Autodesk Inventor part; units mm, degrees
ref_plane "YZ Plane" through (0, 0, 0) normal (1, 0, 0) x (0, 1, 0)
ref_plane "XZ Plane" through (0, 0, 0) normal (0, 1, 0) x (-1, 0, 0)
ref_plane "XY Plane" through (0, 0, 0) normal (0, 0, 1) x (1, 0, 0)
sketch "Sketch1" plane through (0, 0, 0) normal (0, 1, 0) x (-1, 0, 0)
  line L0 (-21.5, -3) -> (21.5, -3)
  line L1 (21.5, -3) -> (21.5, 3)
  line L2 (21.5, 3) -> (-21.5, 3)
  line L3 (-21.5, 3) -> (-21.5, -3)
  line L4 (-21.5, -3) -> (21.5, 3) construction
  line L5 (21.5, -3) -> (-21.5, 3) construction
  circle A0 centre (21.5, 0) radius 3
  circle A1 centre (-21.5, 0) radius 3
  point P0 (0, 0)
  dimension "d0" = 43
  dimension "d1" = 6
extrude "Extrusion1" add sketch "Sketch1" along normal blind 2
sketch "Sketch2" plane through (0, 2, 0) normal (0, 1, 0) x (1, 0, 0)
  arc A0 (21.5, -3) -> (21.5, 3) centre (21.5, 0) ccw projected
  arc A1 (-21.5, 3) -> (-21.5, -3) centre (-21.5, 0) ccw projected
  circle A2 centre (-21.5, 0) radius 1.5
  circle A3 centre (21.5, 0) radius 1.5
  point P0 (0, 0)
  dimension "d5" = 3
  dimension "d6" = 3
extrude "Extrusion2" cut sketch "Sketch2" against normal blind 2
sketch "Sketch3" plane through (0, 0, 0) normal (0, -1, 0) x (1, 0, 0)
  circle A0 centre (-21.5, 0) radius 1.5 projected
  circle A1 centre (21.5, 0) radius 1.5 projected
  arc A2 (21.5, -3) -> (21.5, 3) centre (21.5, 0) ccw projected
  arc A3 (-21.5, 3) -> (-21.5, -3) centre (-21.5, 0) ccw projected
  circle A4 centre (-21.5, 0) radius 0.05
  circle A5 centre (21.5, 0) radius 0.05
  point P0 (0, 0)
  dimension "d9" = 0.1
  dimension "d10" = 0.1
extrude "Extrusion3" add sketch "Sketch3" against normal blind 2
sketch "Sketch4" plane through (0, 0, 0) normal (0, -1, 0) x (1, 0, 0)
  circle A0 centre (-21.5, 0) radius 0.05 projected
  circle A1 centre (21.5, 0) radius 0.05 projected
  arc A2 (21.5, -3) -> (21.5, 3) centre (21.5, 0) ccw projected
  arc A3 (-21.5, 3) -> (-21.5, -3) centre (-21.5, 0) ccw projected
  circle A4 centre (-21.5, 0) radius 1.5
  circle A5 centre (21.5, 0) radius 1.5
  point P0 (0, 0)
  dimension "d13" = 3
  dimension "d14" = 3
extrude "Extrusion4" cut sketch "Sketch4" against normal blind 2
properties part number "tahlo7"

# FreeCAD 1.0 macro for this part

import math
import FreeCAD as App
import Part
import Sketcher
from FreeCAD import Vector

doc = App.newDocument("Part")
params = doc.addObject("Spreadsheet::Sheet", "Params")
for row, (alias, value) in enumerate([
    ("sketch1_radius", "3 mm"),
    ("sketch1_width", "43 mm"),
    ("pad1_length", "2 mm"),
    ("sketch2_diameter", "3 mm"),
    ("pocket1_length", "2 mm"),
    ("sketch3_diameter", "0.1 mm"),
    ("sketch3_diameter2", "3 mm"),
    ("pad2_length", "2 mm"),
    ("sketch4_diameter", "3 mm"),
    ("sketch4_diameter2", "0.1 mm"),
    ("pocket2_length", "2 mm"),
], start=1):
    params.set(f"A{row}", alias)
    params.set(f"B{row}", "=" + value)
    params.setAlias(f"B{row}", alias)

body = doc.addObject("PartDesign::Body", "Body")

# Sketch on XZ plane
sketch1 = body.newObject("Sketcher::SketchObject", "Sketch")
sketch1.AttachmentSupport = (doc.getObject("XZ_Plane"), [""])
sketch1.MapMode = "FlatFace"
sketch1.addGeometry([
    Part.LineSegment(Vector(-21.5, 3, 0), Vector(21.5, 3, 0)),
    Part.ArcOfCircle(Part.Circle(Vector(21.5, 0, 0), Vector(0, 0, 1), 3), math.radians(-90), math.radians(90)),
    Part.LineSegment(Vector(21.5, -3, 0), Vector(-21.5, -3, 0)),
    Part.ArcOfCircle(Part.Circle(Vector(-21.5, 0, 0), Vector(0, 0, 1), 3), math.radians(90), math.radians(270)),
], False)
sketch1.addConstraint([
    Sketcher.Constraint("Tangent", 0, 2, 1, 2),
    Sketcher.Constraint("Tangent", 1, 1, 2, 1),
    Sketcher.Constraint("Tangent", 2, 2, 3, 2),
    Sketcher.Constraint("Tangent", 3, 1, 0, 1),
    Sketcher.Constraint("Horizontal", 0),
    Sketcher.Constraint("Horizontal", 2),
    Sketcher.Constraint("Symmetric", 1, 3, 3, 3, -1, 1),
    Sketcher.Constraint("Radius", 1, 3.0),
    Sketcher.Constraint("DistanceX", 0, 1, 0, 2, 43.0),
])
sketch1.setExpression("Constraints[7]", "Params.sketch1_radius")
sketch1.setExpression("Constraints[8]", "Params.sketch1_width")
pad1 = body.newObject("PartDesign::Pad", "Pad")
pad1.Profile = sketch1
pad1.setExpression("Length", "Params.pad1_length")
pad1.Reversed = True

# Sketch on XZ plane
sketch2 = body.newObject("Sketcher::SketchObject", "Sketch001")
sketch2.AttachmentSupport = (doc.getObject("XZ_Plane"), [""])
sketch2.MapMode = "FlatFace"
sketch2.AttachmentOffset = App.Placement(Vector(0, 0, -2), App.Rotation())
sketch2.addGeometry([
    Part.Circle(Vector(-21.5, 0, 0), Vector(0, 0, 1), 1.5),
    Part.Circle(Vector(21.5, 0, 0), Vector(0, 0, 1), 1.5),
], False)
sketch2.addConstraint([
    Sketcher.Constraint("Equal", 0, 1),
    Sketcher.Constraint("Symmetric", 0, 3, 1, 3, -1, 1),
    Sketcher.Constraint("PointOnObject", 0, 3, -1),
    Sketcher.Constraint("Diameter", 0, 3.0),
    Sketcher.Constraint("DistanceX", 0, 3, 1, 3, 43.0),
])
sketch2.setExpression("Constraints[3]", "Params.sketch2_diameter")
pocket1 = body.newObject("PartDesign::Pocket", "Pocket")
pocket1.Profile = sketch2
pocket1.setExpression("Length", "Params.pocket1_length")
pocket1.Reversed = True

# Sketch on XZ plane
sketch3 = body.newObject("Sketcher::SketchObject", "Sketch002")
sketch3.AttachmentSupport = (doc.getObject("XZ_Plane"), [""])
sketch3.MapMode = "FlatFace"
sketch3.addGeometry([
    Part.Circle(Vector(-21.5, 0, 0), Vector(0, 0, 1), 1.5),
    Part.Circle(Vector(-21.5, 0, 0), Vector(0, 0, 1), 0.05),
    Part.Circle(Vector(21.5, 0, 0), Vector(0, 0, 1), 1.5),
    Part.Circle(Vector(21.5, 0, 0), Vector(0, 0, 1), 0.05),
], False)
sketch3.addConstraint([
    Sketcher.Constraint("Coincident", 1, 3, 0, 3),
    Sketcher.Constraint("Coincident", 3, 3, 2, 3),
    Sketcher.Constraint("Equal", 0, 2),
    Sketcher.Constraint("Equal", 1, 3),
    Sketcher.Constraint("Symmetric", 0, 3, 2, 3, -1, 1),
    Sketcher.Constraint("PointOnObject", 0, 3, -1),
    Sketcher.Constraint("Diameter", 1, 0.1),
    Sketcher.Constraint("Diameter", 0, 3.0),
    Sketcher.Constraint("DistanceX", 0, 3, 2, 3, 43.0),
])
sketch3.setExpression("Constraints[6]", "Params.sketch3_diameter")
sketch3.setExpression("Constraints[7]", "Params.sketch3_diameter2")
pad2 = body.newObject("PartDesign::Pad", "Pad001")
pad2.Profile = sketch3
pad2.setExpression("Length", "Params.pad2_length")
pad2.Reversed = True

# Sketch on XZ plane
sketch4 = body.newObject("Sketcher::SketchObject", "Sketch003")
sketch4.AttachmentSupport = (doc.getObject("XZ_Plane"), [""])
sketch4.MapMode = "FlatFace"
sketch4.addGeometry([
    Part.Circle(Vector(-21.5, 0, 0), Vector(0, 0, 1), 1.5),
    Part.Circle(Vector(-21.5, 0, 0), Vector(0, 0, 1), 0.05),
    Part.Circle(Vector(21.5, 0, 0), Vector(0, 0, 1), 1.5),
    Part.Circle(Vector(21.5, 0, 0), Vector(0, 0, 1), 0.05),
], False)
sketch4.addConstraint([
    Sketcher.Constraint("Coincident", 1, 3, 0, 3),
    Sketcher.Constraint("Coincident", 3, 3, 2, 3),
    Sketcher.Constraint("Equal", 0, 2),
    Sketcher.Constraint("Equal", 1, 3),
    Sketcher.Constraint("Symmetric", 0, 3, 2, 3, -1, 1),
    Sketcher.Constraint("PointOnObject", 0, 3, -1),
    Sketcher.Constraint("Diameter", 0, 3.0),
    Sketcher.Constraint("Diameter", 1, 0.1),
    Sketcher.Constraint("DistanceX", 0, 3, 2, 3, 43.0),
])
sketch4.setExpression("Constraints[6]", "Params.sketch4_diameter")
sketch4.setExpression("Constraints[7]", "Params.sketch4_diameter2")
pocket2 = body.newObject("PartDesign::Pocket", "Pocket001")
pocket2.Profile = sketch4
pocket2.setExpression("Length", "Params.pocket2_length")

doc.recompute()
